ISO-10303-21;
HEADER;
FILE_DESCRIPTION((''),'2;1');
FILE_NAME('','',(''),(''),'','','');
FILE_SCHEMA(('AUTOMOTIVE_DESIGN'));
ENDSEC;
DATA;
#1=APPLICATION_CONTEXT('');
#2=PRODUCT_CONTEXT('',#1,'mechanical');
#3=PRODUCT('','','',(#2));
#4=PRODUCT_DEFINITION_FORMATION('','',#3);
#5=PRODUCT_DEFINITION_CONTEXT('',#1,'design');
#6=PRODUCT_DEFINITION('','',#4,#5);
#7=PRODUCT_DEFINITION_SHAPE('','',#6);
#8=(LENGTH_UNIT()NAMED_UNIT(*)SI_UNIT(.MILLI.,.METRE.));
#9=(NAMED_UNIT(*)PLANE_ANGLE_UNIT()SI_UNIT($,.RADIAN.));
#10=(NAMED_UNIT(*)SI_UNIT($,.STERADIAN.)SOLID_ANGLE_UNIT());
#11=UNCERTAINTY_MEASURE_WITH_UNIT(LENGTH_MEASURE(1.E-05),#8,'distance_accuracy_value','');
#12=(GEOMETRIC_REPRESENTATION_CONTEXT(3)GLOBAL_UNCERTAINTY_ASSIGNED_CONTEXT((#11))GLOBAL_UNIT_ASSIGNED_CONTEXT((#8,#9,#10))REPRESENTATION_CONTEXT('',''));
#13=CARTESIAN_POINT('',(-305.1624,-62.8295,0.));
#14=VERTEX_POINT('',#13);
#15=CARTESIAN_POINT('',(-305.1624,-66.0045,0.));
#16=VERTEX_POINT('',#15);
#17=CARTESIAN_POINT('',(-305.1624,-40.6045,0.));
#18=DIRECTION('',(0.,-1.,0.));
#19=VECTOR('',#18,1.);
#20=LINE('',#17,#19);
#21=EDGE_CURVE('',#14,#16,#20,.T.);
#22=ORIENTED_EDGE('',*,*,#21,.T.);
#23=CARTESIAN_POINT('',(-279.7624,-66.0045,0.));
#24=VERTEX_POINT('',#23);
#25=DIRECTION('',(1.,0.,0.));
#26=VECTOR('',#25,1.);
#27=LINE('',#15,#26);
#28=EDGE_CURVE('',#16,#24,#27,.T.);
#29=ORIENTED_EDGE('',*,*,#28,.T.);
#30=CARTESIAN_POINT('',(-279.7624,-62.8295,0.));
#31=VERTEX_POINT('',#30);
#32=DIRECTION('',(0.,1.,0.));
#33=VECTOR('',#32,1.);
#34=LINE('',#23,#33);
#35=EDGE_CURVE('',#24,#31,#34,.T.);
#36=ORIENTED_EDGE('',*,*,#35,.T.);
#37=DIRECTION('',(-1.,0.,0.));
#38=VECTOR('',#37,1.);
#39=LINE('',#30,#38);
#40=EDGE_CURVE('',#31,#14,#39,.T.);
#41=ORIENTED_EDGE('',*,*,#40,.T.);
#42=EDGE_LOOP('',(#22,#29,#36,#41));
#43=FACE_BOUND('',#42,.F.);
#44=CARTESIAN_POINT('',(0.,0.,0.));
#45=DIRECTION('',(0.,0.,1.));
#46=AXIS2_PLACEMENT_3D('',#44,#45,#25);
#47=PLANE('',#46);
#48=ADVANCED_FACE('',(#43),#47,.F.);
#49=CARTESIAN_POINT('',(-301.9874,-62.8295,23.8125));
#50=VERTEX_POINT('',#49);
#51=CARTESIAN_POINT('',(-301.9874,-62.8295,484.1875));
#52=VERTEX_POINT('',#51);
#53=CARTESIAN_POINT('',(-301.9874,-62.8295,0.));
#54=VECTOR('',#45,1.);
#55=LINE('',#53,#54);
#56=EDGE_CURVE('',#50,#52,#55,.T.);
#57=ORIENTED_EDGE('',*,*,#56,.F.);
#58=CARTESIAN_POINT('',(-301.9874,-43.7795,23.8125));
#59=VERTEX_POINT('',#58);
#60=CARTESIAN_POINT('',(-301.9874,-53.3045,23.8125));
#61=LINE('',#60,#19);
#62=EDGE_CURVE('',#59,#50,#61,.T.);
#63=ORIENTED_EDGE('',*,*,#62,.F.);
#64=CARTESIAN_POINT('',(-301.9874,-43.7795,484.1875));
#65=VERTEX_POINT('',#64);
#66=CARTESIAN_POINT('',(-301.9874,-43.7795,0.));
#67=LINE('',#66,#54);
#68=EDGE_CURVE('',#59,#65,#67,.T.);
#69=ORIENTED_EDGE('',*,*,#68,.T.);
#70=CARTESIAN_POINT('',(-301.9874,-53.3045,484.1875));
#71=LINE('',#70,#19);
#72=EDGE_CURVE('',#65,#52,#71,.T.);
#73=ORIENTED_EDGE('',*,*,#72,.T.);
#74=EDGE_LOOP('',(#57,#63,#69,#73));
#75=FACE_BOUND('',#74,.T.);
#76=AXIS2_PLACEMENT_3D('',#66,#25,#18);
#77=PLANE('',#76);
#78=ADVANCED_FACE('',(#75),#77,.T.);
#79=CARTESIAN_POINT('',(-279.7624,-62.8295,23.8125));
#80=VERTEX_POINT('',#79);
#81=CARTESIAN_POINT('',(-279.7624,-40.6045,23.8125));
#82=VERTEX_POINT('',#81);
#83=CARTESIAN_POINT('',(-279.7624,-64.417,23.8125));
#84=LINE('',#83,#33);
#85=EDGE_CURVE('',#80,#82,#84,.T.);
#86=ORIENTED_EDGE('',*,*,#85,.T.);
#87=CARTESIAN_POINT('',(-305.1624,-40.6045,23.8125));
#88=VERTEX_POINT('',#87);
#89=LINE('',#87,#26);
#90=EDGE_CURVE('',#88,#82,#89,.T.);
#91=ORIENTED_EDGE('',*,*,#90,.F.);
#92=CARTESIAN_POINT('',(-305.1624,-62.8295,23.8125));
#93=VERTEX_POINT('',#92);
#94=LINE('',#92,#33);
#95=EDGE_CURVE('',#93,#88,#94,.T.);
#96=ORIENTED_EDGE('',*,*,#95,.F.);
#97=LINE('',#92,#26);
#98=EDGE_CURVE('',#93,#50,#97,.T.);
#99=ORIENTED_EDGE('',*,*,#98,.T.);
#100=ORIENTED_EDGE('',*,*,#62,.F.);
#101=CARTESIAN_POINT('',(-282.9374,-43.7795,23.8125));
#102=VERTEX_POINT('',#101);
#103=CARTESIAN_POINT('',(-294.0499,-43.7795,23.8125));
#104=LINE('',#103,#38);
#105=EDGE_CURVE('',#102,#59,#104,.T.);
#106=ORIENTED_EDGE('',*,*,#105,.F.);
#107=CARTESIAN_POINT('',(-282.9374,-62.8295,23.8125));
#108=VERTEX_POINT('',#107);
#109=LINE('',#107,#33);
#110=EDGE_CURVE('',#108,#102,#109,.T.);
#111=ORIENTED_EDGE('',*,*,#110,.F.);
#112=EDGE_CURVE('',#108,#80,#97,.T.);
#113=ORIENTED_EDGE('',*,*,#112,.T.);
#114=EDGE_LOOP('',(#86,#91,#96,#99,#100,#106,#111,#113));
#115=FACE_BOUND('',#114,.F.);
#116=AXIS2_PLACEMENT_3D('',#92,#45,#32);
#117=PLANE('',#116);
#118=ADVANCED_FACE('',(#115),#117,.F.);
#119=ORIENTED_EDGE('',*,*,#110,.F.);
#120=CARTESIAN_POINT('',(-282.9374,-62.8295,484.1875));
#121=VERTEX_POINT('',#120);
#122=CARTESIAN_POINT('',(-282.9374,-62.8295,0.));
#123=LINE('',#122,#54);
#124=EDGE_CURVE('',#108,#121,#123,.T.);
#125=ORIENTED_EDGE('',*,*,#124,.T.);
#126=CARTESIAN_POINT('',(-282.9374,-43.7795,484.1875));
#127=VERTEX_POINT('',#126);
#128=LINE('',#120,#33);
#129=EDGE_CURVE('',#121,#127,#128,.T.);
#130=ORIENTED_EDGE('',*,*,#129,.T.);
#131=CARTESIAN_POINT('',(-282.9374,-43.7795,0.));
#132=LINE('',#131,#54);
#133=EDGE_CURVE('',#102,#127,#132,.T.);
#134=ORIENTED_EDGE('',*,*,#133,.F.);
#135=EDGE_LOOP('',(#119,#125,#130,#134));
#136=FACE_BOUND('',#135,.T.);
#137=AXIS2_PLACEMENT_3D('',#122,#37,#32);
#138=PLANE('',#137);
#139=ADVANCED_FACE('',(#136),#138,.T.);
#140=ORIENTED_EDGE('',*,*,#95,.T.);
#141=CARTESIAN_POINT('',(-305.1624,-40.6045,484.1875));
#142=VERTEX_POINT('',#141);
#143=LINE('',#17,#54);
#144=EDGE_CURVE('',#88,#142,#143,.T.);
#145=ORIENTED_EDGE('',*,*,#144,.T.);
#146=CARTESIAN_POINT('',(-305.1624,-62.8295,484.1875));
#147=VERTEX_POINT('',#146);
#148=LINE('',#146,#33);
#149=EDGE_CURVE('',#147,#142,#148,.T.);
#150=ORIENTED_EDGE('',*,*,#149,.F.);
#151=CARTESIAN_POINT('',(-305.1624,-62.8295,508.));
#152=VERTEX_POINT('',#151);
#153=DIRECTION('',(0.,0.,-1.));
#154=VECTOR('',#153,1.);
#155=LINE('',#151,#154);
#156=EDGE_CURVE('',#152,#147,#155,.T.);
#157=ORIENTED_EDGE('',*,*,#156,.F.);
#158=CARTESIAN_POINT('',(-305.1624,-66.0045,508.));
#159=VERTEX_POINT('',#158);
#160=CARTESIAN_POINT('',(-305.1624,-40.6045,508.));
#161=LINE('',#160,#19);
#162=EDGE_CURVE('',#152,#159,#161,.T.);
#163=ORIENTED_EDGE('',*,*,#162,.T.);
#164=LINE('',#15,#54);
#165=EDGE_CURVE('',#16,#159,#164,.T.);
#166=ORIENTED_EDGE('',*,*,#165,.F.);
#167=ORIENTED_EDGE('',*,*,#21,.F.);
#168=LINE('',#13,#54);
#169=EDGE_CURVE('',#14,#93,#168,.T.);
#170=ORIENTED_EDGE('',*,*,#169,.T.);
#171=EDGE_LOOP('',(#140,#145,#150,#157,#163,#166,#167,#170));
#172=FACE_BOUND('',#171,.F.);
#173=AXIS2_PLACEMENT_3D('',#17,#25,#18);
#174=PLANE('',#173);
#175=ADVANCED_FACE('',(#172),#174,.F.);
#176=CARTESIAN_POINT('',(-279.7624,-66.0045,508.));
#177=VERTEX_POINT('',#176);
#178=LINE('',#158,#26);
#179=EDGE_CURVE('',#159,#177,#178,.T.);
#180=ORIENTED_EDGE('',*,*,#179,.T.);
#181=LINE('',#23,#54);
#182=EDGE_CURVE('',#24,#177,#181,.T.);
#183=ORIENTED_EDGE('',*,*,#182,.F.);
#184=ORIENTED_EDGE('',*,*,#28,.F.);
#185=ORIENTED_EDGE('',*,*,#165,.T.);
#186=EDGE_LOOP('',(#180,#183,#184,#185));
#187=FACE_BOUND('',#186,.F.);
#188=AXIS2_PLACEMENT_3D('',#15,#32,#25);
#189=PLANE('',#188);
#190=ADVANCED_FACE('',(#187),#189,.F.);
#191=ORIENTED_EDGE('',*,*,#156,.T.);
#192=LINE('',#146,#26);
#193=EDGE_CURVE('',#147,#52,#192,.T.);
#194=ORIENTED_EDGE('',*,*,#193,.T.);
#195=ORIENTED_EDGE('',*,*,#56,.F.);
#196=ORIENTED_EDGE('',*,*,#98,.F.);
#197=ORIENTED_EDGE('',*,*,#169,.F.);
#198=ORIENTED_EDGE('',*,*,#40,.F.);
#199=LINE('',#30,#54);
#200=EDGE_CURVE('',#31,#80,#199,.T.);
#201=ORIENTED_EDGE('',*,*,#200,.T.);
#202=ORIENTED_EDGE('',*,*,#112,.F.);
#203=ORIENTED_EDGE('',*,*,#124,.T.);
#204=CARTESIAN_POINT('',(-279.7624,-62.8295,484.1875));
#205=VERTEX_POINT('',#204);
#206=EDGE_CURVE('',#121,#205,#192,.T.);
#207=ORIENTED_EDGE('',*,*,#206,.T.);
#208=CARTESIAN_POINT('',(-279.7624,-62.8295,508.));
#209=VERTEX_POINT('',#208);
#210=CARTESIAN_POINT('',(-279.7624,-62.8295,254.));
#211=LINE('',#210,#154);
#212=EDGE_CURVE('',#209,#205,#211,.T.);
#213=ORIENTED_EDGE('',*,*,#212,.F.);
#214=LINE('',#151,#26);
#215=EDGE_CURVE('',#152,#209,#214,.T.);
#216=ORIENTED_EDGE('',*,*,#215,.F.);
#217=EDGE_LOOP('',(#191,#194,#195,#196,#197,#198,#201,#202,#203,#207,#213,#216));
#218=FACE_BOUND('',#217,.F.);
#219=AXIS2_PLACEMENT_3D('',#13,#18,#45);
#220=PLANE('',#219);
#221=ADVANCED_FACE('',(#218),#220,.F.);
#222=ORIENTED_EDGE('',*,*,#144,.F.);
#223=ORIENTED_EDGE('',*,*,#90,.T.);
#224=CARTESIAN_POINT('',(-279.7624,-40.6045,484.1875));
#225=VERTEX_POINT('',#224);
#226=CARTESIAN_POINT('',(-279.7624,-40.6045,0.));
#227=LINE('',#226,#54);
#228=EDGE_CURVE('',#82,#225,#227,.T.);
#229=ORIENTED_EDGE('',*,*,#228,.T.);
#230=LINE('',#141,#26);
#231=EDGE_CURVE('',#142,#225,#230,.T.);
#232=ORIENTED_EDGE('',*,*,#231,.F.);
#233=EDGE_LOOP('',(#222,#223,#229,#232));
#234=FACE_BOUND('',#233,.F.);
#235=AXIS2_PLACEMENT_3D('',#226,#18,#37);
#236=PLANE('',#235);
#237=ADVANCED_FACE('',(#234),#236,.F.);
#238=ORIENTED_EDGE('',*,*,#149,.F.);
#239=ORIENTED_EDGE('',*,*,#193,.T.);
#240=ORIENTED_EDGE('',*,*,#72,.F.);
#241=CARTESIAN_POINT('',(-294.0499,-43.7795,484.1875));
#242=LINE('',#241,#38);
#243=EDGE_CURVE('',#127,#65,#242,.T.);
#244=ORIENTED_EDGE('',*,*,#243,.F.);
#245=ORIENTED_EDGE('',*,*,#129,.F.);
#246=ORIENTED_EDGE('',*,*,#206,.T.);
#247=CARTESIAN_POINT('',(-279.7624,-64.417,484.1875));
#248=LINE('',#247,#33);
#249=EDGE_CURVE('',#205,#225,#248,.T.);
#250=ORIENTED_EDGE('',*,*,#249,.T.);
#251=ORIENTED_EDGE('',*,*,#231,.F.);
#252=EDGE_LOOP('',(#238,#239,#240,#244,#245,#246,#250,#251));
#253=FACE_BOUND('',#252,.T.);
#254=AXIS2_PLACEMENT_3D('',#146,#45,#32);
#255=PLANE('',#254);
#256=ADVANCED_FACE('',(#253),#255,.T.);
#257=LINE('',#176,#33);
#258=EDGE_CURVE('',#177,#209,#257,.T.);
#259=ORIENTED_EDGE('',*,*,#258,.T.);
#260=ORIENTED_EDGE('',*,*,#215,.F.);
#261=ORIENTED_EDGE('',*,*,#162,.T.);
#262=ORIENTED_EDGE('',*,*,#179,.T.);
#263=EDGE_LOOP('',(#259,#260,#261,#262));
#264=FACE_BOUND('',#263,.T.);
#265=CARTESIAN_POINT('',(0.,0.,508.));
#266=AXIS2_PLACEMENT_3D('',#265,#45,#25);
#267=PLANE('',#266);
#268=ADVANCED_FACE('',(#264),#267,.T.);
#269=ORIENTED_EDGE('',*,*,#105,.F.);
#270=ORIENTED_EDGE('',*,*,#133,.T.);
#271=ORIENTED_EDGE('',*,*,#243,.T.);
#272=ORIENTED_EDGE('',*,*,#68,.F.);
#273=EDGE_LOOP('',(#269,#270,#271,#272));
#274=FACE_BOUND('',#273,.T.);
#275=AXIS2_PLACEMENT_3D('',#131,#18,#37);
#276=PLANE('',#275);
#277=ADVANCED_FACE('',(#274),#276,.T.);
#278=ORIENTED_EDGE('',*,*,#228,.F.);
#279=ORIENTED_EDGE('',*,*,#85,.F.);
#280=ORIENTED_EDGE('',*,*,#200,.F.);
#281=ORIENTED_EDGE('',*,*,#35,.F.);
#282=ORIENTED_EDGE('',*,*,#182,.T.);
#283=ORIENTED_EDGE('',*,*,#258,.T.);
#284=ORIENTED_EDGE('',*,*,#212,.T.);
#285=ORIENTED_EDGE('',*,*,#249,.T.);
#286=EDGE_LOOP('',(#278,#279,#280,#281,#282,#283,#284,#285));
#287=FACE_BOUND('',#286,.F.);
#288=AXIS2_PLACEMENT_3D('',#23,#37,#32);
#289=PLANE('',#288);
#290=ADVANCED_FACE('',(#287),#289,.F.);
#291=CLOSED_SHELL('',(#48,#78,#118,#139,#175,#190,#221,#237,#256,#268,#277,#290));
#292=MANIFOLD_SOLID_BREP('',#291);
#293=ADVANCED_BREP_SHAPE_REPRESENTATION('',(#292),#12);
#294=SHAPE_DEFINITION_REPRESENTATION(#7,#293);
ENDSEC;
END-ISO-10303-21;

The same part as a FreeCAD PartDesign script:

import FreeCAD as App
import Part
import Sketcher

V = App.Vector
Q = App.Units.Quantity

doc = App.newDocument("Part")
body = doc.addObject("PartDesign::Body", "Body")

# Sketch on XY plane
sketch1 = doc.addObject("Sketcher::SketchObject", "Sketch")
body.addObject(sketch1)
sketch1.AttachmentSupport = (doc.XY_Plane, [""])
sketch1.MapMode = "FlatFace"
sketch1.addGeometry(Part.LineSegment(V(-305, -41, 0), V(-305, -66, 0)), False)
sketch1.addGeometry(Part.LineSegment(V(-305, -66, 0), V(-280, -66, 0)), False)
sketch1.addGeometry(Part.LineSegment(V(-280, -66, 0), V(-280, -41, 0)), False)
sketch1.addGeometry(Part.LineSegment(V(-280, -41, 0), V(-305, -41, 0)), False)
sketch1.addGeometry(Part.LineSegment(V(-283, -63, 0), V(-302, -63, 0)), False)
sketch1.addGeometry(Part.LineSegment(V(-302, -63, 0), V(-302, -44, 0)), False)
sketch1.addGeometry(Part.LineSegment(V(-302, -44, 0), V(-283, -44, 0)), False)
sketch1.addGeometry(Part.LineSegment(V(-283, -44, 0), V(-283, -63, 0)), False)
sketch1.addConstraint(Sketcher.Constraint("Coincident", 0, 2, 1, 1))
sketch1.addConstraint(Sketcher.Constraint("Coincident", 1, 2, 2, 1))
sketch1.addConstraint(Sketcher.Constraint("Coincident", 2, 2, 3, 1))
sketch1.addConstraint(Sketcher.Constraint("Coincident", 3, 2, 0, 1))
sketch1.addConstraint(Sketcher.Constraint("Coincident", 4, 2, 5, 1))
sketch1.addConstraint(Sketcher.Constraint("Coincident", 5, 2, 6, 1))
sketch1.addConstraint(Sketcher.Constraint("Coincident", 6, 2, 7, 1))
sketch1.addConstraint(Sketcher.Constraint("Coincident", 7, 2, 4, 1))
sketch1.addConstraint(Sketcher.Constraint("Vertical", 0))
sketch1.addConstraint(Sketcher.Constraint("Horizontal", 1))
sketch1.addConstraint(Sketcher.Constraint("Vertical", 2))
sketch1.addConstraint(Sketcher.Constraint("Horizontal", 3))
sketch1.addConstraint(Sketcher.Constraint("Horizontal", 4))
sketch1.addConstraint(Sketcher.Constraint("Vertical", 5))
sketch1.addConstraint(Sketcher.Constraint("Horizontal", 6))
sketch1.addConstraint(Sketcher.Constraint("Vertical", 7))
sketch1.addConstraint(Sketcher.Constraint("Equal", 3, 0))
sketch1.addConstraint(Sketcher.Constraint("Equal", 6, 5))
sketch1.addConstraint(Sketcher.Constraint("DistanceX", 1, 1, 1, 2, Q("1 in")))
sketch1.addConstraint(Sketcher.Constraint("DistanceX", 0, 2, 4, 2, Q("0.125 in")))
sketch1.addConstraint(Sketcher.Constraint("DistanceY", 0, 2, 4, 2, Q("0.125 in")))
sketch1.addConstraint(Sketcher.Constraint("DistanceY", 5, 2, 3, 2, Q("0.125 in")))
sketch1.addConstraint(Sketcher.Constraint("DistanceY", 0, 2, -1, 1, Q("2.5986 in")))
sketch1.addConstraint(Sketcher.Constraint("DistanceX", 0, 2, -1, 1, 305.1624))
pad1 = doc.addObject("PartDesign::Pad", "Pad")
body.addObject(pad1)
pad1.Profile = sketch1
pad1.Length = Q("20 in")

# Sketch on YZ plane
sketch2 = doc.addObject("Sketcher::SketchObject", "Sketch001")
body.addObject(sketch2)
sketch2.AttachmentSupport = (doc.YZ_Plane, [""])
sketch2.MapMode = "FlatFace"
sketch2.AttachmentOffset = App.Placement(V(0, 0, -305.1624), App.Rotation())
sketch2.addGeometry(Part.LineSegment(V(-63, 484, 0), V(-63, 508, 0)), False)
sketch2.addGeometry(Part.LineSegment(V(-63, 508, 0), V(-41, 508, 0)), False)
sketch2.addGeometry(Part.LineSegment(V(-41, 508, 0), V(-41, 484, 0)), False)
sketch2.addGeometry(Part.LineSegment(V(-41, 484, 0), V(-63, 484, 0)), False)
sketch2.addGeometry(Part.LineSegment(V(-63, 24, 0), V(-41, 24, 0)), False)
sketch2.addGeometry(Part.LineSegment(V(-41, 24, 0), V(-41, 0, 0)), False)
sketch2.addGeometry(Part.LineSegment(V(-41, 0, 0), V(-63, 0, 0)), False)
sketch2.addGeometry(Part.LineSegment(V(-63, 0, 0), V(-63, 24, 0)), False)
sketch2.addConstraint(Sketcher.Constraint("Coincident", 0, 2, 1, 1))
sketch2.addConstraint(Sketcher.Constraint("Coincident", 1, 2, 2, 1))
sketch2.addConstraint(Sketcher.Constraint("Coincident", 2, 2, 3, 1))
sketch2.addConstraint(Sketcher.Constraint("Coincident", 3, 2, 0, 1))
sketch2.addConstraint(Sketcher.Constraint("Coincident", 4, 2, 5, 1))
sketch2.addConstraint(Sketcher.Constraint("Coincident", 5, 2, 6, 1))
sketch2.addConstraint(Sketcher.Constraint("Coincident", 6, 2, 7, 1))
sketch2.addConstraint(Sketcher.Constraint("Coincident", 7, 2, 4, 1))
sketch2.addConstraint(Sketcher.Constraint("Vertical", 0))
sketch2.addConstraint(Sketcher.Constraint("Horizontal", 1))
sketch2.addConstraint(Sketcher.Constraint("Vertical", 2))
sketch2.addConstraint(Sketcher.Constraint("Horizontal", 3))
sketch2.addConstraint(Sketcher.Constraint("Horizontal", 4))
sketch2.addConstraint(Sketcher.Constraint("Vertical", 5))
sketch2.addConstraint(Sketcher.Constraint("Horizontal", 6))
sketch2.addConstraint(Sketcher.Constraint("Vertical", 7))
sketch2.addConstraint(Sketcher.Constraint("PointOnObject", 5, 2, -1))
sketch2.addConstraint(Sketcher.Constraint("Vertical", 2, 2, 4, 2))
sketch2.addConstraint(Sketcher.Constraint("Vertical", 3, 2, 6, 2))
sketch2.addConstraint(Sketcher.Constraint("Equal", 2, 5))
sketch2.addConstraint(Sketcher.Constraint("DistanceY", -1, 1, 0, 2, Q("20 in")))
sketch2.addConstraint(Sketcher.Constraint("DistanceY", 0, 1, 0, 2, Q("0.9375 in")))
sketch2.addConstraint(Sketcher.Constraint("DistanceX", 1, 1, 1, 2, Q("0.875 in")))
sketch2.addConstraint(Sketcher.Constraint("DistanceX", 0, 2, -1, 1, Q("2.4736 in")))
pocket1 = doc.addObject("PartDesign::Pocket", "Pocket")
body.addObject(pocket1)
pocket1.Profile = sketch2
pocket1.Type = "ThroughAll"
pocket1.Reversed = True

doc.recompute()
